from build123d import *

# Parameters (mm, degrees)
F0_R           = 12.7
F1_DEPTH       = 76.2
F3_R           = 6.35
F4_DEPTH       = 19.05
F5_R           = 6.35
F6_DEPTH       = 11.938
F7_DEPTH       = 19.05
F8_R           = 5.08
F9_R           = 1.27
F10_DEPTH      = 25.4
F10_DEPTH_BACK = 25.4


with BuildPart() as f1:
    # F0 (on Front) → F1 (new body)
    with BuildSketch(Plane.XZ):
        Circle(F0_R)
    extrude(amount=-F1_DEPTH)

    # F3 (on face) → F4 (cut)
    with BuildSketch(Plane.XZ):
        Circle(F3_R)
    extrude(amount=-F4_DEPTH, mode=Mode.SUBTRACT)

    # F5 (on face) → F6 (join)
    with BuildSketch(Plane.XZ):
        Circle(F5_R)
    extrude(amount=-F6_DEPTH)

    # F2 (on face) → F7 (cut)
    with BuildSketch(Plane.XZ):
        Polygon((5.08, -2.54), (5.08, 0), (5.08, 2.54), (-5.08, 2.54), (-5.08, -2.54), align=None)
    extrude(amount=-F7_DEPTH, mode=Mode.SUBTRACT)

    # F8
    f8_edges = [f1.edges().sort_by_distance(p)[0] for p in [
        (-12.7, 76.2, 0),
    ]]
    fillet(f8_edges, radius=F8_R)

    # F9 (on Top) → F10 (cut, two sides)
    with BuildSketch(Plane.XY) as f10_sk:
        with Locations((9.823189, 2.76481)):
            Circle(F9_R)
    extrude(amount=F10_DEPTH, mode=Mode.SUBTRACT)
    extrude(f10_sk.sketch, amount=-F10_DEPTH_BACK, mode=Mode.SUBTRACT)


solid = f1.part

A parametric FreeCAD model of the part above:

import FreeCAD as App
import Part
import Sketcher
Q = App.Units.Quantity


def edges_at(feature, points):
    """Names of the edges that pass closest to the given points."""
    edges = feature.Shape.Edges
    near = lambda p: min(range(len(edges)), key=lambda i: edges[i].distToShape(Part.Vertex(*p))[0])
    return sorted({f"Edge{near(p) + 1}" for p in points})

doc = App.newDocument("Part")
body = doc.addObject("PartDesign::Body", "Body")

# Sketch on XZ plane
sketch1 = body.newObject("Sketcher::SketchObject", "Sketch")
sketch1.AttachmentSupport = (doc.getObject("XZ_Plane"), [""])
sketch1.MapMode = "FlatFace"
sketch1.addGeometry(Part.Circle(App.Vector(0, 0, 0), App.Vector(0, 0, 1), 13), False)
sketch1.addConstraint([
    Sketcher.Constraint("Coincident", 0, 3, -1, 1),
    Sketcher.Constraint("Diameter", 0, Q("1 in")),
])
pad1 = body.newObject("PartDesign::Pad", "Pad")
pad1.Profile = sketch1
pad1.Length = Q("3 in")
pad1.Reversed = True

# Sketch on XZ plane
sketch2 = body.newObject("Sketcher::SketchObject", "Sketch001")
sketch2.AttachmentSupport = (doc.getObject("XZ_Plane"), [""])
sketch2.MapMode = "FlatFace"
sketch2.addGeometry(Part.Circle(App.Vector(0, 0, 0), App.Vector(0, 0, 1), 6), False)
sketch2.addConstraint([
    Sketcher.Constraint("Coincident", 0, 3, -1, 1),
    Sketcher.Constraint("Diameter", 0, Q("0.5 in")),
])
pocket1 = body.newObject("PartDesign::Pocket", "Pocket")
pocket1.Profile = sketch2
pocket1.Length = Q("0.75 in")

# Sketch on XZ plane
sketch3 = body.newObject("Sketcher::SketchObject", "Sketch002")
sketch3.AttachmentSupport = (doc.getObject("XZ_Plane"), [""])
sketch3.MapMode = "FlatFace"
sketch3.addGeometry(Part.Circle(App.Vector(0, 0, 0), App.Vector(0, 0, 1), 6), False)
sketch3.addConstraint([
    Sketcher.Constraint("Coincident", 0, 3, -1, 1),
    Sketcher.Constraint("Diameter", 0, Q("0.5 in")),
])
pad2 = body.newObject("PartDesign::Pad", "Pad001")
pad2.Profile = sketch3
pad2.Length = Q("0.47 in")
pad2.Reversed = True

# Sketch on XZ plane
sketch4 = body.newObject("Sketcher::SketchObject", "Sketch003")
sketch4.AttachmentSupport = (doc.getObject("XZ_Plane"), [""])
sketch4.MapMode = "FlatFace"
sketch4.addGeometry([
    Part.LineSegment(App.Vector(5, -3, 0), App.Vector(5, 3, 0)),
    Part.LineSegment(App.Vector(5, 3, 0), App.Vector(-5, 3, 0)),
    Part.LineSegment(App.Vector(-5, 3, 0), App.Vector(-5, -3, 0)),
    Part.LineSegment(App.Vector(-5, -3, 0), App.Vector(5, -3, 0)),
], False)
sketch4.addConstraint([
    Sketcher.Constraint("Coincident", 0, 2, 1, 1),
    Sketcher.Constraint("Coincident", 1, 2, 2, 1),
    Sketcher.Constraint("Coincident", 2, 2, 3, 1),
    Sketcher.Constraint("Coincident", 3, 2, 0, 1),
    Sketcher.Constraint("Vertical", 0),
    Sketcher.Constraint("Horizontal", 1),
    Sketcher.Constraint("Vertical", 2),
    Sketcher.Constraint("Horizontal", 3),
    Sketcher.Constraint("Symmetric", 0, 2, 2, 2, -1, 1),
    Sketcher.Constraint("DistanceX", 1, 2, 1, 1, Q("0.4 in")),
    Sketcher.Constraint("DistanceY", 0, 1, 0, 2, Q("0.2 in")),
])
pocket2 = body.newObject("PartDesign::Pocket", "Pocket001")
pocket2.Profile = sketch4
pocket2.Length = Q("0.75 in")
doc.recompute()

fillet = body.newObject("PartDesign::Fillet", "Fillet")
fillet.Base = (pocket2, edges_at(pocket2, [(-12.7, 76.2, 0)]))
fillet.Radius = Q("0.2 in")

# Sketch on XY plane
sketch5 = body.newObject("Sketcher::SketchObject", "Sketch004")
sketch5.AttachmentSupport = (doc.getObject("XY_Plane"), [""])
sketch5.MapMode = "FlatFace"
sketch5.addGeometry(Part.Circle(App.Vector(9.8, 2.8, 0), App.Vector(0, 0, 1), 1.3), False)
sketch5.addConstraint([
    Sketcher.Constraint("Diameter", 0, Q("0.1 in")),
    Sketcher.Constraint("DistanceX", -1, 1, 0, 3, 9.823189),
    Sketcher.Constraint("DistanceY", -1, 1, 0, 3, 2.76481),
])
pocket3 = body.newObject("PartDesign::Pocket", "Pocket002")
pocket3.Profile = sketch5
pocket3.Type = "ThroughAll"
pocket3.Midplane = True

doc.recompute()
